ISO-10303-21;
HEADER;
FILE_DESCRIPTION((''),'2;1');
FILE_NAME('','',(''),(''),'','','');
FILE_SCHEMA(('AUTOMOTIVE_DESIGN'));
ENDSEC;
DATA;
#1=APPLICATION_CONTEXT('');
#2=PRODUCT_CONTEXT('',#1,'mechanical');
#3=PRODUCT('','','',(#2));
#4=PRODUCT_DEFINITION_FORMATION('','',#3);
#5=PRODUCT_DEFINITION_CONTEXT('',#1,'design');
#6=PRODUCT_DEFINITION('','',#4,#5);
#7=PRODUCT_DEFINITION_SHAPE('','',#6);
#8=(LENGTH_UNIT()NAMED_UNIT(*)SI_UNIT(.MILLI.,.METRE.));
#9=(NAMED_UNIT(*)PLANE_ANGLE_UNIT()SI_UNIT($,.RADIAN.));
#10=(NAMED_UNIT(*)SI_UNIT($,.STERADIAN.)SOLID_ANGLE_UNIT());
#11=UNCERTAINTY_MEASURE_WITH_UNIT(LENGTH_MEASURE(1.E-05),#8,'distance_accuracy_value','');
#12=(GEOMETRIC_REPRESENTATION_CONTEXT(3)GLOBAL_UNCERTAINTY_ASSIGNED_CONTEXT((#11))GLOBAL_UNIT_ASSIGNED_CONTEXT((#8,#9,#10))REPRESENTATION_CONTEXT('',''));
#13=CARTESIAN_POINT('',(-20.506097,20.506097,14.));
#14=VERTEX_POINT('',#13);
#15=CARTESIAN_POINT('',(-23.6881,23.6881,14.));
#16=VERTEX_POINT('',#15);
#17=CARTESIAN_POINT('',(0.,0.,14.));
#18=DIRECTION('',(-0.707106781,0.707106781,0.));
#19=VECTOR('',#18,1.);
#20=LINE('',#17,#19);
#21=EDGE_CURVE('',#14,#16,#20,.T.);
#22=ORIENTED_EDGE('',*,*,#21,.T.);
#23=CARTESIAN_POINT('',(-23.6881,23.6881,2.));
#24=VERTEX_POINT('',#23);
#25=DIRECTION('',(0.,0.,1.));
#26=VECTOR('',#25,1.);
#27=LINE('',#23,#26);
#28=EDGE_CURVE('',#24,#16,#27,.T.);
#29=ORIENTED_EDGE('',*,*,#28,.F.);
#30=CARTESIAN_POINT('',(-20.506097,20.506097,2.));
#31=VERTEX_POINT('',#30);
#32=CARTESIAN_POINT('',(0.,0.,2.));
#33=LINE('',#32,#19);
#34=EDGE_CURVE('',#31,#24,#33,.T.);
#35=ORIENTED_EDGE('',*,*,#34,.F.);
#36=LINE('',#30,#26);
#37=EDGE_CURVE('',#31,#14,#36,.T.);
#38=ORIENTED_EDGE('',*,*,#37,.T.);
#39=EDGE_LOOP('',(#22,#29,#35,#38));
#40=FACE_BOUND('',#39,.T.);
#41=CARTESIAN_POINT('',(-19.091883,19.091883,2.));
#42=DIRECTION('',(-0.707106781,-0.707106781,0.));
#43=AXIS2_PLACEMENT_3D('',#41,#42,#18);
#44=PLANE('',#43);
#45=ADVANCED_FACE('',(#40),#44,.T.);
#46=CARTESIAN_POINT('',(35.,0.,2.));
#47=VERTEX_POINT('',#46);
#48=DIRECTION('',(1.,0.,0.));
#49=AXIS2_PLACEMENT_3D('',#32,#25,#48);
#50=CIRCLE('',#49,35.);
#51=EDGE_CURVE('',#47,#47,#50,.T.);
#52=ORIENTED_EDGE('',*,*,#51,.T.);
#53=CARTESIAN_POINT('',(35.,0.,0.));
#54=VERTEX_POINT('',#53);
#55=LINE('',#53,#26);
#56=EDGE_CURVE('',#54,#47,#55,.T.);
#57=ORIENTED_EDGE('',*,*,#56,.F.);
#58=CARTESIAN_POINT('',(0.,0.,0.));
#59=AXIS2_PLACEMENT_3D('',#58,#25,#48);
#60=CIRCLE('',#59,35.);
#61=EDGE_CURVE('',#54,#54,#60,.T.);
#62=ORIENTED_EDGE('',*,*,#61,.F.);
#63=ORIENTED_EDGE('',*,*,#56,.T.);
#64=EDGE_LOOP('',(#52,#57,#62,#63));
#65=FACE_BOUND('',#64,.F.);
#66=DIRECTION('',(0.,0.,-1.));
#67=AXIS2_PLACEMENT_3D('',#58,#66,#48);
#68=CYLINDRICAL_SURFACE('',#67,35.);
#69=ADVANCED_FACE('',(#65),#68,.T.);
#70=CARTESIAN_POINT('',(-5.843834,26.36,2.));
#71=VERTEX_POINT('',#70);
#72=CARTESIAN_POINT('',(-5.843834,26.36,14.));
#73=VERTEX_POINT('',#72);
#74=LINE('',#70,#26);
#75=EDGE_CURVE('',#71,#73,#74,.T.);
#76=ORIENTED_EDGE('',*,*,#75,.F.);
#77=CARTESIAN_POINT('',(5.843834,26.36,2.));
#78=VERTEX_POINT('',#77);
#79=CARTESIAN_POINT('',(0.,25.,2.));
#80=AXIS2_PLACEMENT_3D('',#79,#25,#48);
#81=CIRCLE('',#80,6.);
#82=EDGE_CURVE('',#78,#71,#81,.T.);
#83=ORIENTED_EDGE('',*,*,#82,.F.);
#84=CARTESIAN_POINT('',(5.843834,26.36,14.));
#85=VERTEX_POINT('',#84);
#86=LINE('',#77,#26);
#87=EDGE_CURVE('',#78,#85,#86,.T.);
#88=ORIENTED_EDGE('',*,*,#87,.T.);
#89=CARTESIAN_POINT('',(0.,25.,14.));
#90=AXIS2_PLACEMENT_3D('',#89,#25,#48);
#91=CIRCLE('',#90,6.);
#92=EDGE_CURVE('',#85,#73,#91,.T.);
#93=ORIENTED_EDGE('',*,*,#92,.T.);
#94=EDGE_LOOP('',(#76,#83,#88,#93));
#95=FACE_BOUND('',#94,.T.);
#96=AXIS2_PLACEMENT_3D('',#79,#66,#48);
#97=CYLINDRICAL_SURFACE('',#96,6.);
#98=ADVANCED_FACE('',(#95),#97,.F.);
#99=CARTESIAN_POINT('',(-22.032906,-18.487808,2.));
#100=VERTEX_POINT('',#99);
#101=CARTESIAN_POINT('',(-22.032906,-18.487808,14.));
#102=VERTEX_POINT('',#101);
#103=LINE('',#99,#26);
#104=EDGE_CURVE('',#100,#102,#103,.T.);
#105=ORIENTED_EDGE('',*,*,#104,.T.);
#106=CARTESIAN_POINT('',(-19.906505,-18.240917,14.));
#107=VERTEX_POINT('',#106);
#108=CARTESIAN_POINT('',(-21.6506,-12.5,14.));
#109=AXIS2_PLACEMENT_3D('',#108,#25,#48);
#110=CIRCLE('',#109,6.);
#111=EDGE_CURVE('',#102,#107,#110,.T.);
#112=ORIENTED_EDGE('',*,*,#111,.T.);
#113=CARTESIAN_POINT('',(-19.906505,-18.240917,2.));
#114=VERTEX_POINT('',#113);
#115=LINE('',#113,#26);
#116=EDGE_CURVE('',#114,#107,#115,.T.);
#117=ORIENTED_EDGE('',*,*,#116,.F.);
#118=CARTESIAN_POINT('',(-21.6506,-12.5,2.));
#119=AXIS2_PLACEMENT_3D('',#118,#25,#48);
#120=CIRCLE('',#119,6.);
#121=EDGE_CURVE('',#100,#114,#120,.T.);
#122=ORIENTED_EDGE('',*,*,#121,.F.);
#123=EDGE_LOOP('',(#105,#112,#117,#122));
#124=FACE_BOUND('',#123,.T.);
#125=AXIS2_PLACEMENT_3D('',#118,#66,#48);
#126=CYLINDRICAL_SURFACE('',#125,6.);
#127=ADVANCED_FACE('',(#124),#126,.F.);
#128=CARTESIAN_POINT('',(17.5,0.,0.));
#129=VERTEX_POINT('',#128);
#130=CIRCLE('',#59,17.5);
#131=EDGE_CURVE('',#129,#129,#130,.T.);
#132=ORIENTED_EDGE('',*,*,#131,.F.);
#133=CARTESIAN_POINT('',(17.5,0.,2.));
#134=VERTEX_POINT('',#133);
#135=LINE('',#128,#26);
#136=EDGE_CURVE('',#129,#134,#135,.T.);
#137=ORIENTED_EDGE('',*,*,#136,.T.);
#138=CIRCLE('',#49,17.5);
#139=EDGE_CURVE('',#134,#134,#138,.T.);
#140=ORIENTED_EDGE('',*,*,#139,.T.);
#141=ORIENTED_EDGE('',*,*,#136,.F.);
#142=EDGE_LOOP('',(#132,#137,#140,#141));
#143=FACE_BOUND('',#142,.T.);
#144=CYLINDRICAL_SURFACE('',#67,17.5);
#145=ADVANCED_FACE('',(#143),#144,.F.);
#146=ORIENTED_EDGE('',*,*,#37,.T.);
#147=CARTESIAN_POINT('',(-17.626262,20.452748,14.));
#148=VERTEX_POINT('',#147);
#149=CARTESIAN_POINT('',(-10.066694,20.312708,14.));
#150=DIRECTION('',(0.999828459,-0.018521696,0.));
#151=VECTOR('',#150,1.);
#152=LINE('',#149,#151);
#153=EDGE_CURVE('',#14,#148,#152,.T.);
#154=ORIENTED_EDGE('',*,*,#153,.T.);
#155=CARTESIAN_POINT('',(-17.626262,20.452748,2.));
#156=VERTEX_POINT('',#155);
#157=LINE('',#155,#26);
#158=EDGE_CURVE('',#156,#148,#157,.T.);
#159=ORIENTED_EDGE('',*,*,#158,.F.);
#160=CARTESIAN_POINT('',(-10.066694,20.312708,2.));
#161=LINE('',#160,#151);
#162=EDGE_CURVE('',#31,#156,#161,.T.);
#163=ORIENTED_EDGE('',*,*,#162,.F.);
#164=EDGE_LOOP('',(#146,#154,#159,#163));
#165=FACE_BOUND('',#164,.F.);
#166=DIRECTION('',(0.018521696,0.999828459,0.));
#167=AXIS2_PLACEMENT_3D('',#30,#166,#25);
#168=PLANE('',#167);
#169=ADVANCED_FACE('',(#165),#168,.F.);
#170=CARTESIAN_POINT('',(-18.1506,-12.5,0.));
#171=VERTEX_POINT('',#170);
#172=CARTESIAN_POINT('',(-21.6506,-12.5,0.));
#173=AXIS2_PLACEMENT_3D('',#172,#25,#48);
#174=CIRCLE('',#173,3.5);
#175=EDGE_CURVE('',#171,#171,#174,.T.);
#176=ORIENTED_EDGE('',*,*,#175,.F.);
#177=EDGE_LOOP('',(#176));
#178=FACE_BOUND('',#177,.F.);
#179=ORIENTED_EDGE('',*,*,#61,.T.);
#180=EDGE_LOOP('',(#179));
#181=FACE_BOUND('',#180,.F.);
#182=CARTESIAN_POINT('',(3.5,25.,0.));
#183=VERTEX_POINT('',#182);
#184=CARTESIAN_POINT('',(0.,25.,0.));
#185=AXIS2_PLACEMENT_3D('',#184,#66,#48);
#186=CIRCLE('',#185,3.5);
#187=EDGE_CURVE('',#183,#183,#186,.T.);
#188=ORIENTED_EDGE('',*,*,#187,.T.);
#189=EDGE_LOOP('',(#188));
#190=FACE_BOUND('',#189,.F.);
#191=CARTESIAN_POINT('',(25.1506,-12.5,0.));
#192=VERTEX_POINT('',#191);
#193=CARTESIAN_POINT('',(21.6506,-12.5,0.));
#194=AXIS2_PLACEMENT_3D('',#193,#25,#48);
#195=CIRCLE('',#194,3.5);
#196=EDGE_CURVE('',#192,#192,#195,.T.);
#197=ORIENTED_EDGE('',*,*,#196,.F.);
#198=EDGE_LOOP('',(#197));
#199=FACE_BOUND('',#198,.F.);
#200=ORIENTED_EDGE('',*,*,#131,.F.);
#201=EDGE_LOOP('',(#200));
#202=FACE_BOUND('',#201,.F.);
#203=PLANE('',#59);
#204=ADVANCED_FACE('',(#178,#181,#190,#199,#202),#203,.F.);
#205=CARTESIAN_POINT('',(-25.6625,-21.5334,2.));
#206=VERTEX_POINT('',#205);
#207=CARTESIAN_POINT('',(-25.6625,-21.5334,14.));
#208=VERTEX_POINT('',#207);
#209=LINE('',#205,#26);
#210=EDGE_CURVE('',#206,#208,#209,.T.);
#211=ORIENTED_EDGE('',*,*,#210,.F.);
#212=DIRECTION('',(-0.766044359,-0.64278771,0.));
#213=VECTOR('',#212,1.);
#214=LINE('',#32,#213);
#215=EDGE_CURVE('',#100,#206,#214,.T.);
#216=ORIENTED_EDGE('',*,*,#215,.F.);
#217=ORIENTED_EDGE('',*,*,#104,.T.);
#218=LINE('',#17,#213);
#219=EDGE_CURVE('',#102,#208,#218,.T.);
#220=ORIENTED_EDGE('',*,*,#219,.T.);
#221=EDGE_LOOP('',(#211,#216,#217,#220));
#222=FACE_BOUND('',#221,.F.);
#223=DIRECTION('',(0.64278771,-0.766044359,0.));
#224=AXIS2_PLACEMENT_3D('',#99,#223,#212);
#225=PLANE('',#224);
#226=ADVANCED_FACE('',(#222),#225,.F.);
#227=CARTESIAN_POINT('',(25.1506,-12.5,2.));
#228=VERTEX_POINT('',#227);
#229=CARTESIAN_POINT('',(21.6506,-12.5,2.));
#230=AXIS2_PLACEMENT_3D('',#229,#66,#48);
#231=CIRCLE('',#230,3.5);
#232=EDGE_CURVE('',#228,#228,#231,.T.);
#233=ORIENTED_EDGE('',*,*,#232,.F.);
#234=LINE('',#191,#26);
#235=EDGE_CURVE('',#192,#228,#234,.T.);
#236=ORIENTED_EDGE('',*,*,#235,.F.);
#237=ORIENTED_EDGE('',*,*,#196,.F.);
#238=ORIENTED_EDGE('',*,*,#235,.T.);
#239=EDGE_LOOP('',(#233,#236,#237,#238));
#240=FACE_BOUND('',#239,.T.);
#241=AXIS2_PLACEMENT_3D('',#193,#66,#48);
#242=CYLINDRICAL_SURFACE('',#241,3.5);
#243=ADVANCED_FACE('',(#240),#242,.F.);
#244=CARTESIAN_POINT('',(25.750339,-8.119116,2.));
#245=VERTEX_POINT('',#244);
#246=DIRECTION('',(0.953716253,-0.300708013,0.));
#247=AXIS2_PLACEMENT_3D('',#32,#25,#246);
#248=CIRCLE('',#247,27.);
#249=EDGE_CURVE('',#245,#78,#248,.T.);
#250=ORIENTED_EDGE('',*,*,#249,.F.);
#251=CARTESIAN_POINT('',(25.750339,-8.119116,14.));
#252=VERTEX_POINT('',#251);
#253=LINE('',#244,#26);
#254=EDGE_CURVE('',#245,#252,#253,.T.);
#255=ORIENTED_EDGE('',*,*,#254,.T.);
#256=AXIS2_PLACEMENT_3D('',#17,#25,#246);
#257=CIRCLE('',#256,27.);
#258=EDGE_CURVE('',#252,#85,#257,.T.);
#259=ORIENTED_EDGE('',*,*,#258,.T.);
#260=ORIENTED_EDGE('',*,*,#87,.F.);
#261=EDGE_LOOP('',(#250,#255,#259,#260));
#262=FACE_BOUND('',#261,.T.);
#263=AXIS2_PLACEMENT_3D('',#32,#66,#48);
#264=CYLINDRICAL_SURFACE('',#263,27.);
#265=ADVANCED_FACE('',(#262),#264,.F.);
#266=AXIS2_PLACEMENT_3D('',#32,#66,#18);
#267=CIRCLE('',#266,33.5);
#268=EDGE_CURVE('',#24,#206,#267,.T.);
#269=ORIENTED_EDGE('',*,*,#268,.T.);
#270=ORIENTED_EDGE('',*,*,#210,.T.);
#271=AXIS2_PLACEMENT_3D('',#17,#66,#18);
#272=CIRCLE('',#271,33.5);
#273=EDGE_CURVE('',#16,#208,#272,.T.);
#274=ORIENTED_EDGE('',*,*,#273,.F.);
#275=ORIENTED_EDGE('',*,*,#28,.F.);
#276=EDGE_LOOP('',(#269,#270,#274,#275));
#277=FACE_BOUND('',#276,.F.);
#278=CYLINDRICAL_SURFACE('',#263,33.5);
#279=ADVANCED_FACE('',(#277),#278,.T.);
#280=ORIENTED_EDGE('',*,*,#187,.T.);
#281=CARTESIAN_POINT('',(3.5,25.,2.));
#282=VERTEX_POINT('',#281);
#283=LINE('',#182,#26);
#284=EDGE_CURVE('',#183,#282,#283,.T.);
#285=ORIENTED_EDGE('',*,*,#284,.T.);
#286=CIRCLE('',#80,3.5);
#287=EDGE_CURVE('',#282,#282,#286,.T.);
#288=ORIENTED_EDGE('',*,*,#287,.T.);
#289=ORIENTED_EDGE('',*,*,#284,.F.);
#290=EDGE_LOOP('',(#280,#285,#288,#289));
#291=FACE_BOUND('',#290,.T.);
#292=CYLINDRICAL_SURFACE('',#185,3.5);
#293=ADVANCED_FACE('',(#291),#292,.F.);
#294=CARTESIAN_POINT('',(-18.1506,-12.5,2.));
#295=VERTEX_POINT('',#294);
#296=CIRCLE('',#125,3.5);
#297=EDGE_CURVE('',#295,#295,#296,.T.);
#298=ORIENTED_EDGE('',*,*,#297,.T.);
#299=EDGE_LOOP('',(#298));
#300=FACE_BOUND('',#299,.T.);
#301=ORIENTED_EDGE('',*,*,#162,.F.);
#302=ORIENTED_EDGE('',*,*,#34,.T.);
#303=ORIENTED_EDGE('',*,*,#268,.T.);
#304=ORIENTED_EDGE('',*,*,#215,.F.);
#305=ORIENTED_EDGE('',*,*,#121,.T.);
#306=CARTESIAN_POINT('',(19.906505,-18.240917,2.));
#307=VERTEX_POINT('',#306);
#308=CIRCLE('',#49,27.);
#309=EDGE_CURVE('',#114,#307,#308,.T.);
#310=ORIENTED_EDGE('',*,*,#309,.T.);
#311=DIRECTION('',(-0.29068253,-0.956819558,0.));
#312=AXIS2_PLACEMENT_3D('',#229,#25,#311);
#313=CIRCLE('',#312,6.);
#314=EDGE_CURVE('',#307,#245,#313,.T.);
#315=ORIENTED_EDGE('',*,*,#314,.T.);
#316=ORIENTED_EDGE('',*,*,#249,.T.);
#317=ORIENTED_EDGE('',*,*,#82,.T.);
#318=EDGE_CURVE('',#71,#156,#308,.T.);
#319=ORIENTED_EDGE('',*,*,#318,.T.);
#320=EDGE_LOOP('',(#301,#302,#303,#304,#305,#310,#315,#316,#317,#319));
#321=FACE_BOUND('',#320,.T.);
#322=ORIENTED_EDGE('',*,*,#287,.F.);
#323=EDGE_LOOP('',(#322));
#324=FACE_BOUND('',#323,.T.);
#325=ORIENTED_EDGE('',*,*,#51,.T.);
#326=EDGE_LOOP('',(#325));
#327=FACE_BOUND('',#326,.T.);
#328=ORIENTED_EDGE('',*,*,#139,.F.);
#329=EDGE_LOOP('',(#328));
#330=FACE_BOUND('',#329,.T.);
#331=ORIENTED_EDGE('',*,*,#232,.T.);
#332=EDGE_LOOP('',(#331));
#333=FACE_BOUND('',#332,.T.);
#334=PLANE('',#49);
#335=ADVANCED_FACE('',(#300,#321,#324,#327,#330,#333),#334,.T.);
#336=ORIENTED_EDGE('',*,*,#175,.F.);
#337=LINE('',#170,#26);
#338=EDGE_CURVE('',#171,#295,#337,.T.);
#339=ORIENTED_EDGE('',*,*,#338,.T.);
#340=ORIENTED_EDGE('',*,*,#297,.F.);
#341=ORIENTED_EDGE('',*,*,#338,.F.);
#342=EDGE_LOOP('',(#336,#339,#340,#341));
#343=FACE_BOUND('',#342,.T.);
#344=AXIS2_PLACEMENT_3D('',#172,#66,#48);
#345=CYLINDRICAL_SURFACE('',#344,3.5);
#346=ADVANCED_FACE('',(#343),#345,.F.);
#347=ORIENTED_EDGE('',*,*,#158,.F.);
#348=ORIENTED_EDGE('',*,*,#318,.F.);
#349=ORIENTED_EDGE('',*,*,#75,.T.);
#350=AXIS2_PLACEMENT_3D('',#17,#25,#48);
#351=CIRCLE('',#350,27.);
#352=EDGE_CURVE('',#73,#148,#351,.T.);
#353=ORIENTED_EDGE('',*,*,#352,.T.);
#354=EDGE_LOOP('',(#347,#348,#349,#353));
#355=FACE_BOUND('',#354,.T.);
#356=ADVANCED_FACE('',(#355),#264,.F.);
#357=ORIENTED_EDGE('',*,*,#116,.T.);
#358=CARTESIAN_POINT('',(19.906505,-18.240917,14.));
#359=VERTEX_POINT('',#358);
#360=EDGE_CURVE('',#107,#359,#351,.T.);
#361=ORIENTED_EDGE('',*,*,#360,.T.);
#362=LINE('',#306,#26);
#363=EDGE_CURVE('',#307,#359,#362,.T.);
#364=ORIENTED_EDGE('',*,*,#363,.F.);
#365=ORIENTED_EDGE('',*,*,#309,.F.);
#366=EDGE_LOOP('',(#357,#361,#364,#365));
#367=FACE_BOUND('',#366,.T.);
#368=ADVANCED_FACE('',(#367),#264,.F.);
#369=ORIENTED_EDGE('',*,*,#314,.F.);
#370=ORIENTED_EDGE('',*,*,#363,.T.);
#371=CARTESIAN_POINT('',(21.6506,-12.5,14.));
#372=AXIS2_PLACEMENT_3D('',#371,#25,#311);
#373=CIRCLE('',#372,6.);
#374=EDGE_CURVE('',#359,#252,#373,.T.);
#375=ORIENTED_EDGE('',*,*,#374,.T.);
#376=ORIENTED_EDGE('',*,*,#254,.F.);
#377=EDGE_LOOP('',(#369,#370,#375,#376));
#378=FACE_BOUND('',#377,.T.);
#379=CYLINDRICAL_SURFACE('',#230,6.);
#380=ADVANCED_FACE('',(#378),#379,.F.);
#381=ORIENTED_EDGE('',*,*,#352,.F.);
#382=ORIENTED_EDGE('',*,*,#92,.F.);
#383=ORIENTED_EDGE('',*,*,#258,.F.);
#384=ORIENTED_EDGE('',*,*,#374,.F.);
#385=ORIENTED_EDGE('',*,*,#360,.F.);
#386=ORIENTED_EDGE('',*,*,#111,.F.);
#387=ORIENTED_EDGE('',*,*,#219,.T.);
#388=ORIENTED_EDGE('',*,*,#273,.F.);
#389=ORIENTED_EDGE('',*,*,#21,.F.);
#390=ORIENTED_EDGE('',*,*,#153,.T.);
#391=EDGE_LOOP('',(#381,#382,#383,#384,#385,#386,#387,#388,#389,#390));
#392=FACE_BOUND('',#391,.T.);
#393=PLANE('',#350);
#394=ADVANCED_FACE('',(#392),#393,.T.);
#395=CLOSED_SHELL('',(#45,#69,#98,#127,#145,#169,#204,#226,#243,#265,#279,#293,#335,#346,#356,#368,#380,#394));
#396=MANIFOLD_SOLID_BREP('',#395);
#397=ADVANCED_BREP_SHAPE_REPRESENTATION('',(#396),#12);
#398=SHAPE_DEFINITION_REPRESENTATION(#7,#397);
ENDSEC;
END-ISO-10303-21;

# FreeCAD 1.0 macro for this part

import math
import FreeCAD as App
import Part
import Sketcher
Q = App.Units.Quantity


def edges_at(feature, points):
    """Names of the edges that pass closest to the given points."""
    edges = feature.Shape.Edges
    near = lambda p: min(range(len(edges)), key=lambda i: edges[i].distToShape(Part.Vertex(*p))[0])
    return sorted({f"Edge{near(p) + 1}" for p in points})

doc = App.newDocument("Part")
body = doc.addObject("PartDesign::Body", "Body")

# Sketch on XY plane
sketch1 = body.newObject("Sketcher::SketchObject", "Sketch")
sketch1.AttachmentSupport = (doc.getObject("XY_Plane"), [""])
sketch1.MapMode = "FlatFace"
sketch1.addGeometry([
    Part.Circle(App.Vector(0, 0, 0), App.Vector(0, 0, 1), 35),  # 0
    Part.Circle(App.Vector(0, 25, 0), App.Vector(0, 0, 1), 3.5),  # 1
    Part.Circle(App.Vector(21.7, -12.5, 0), App.Vector(0, 0, 1), 3.5),  # 2
    Part.Circle(App.Vector(-21.7, -12.5, 0), App.Vector(0, 0, 1), 3.5),  # 3
    Part.Circle(App.Vector(0, 0, 0), App.Vector(0, 0, 1), 17.5),  # 4
], False)
sketch1.addConstraint([
    Sketcher.Constraint("Coincident", 0, 3, -1, 1),
    Sketcher.Constraint("Coincident", 4, 3, -1, 1),
    Sketcher.Constraint("Equal", 1, 2),
    Sketcher.Constraint("Equal", 2, 3),
    Sketcher.Constraint("Symmetric", 2, 3, 3, 3, -2),
    Sketcher.Constraint("PointOnObject", 1, 3, -2),
    Sketcher.Constraint("Diameter", 0, Q("70 mm")),
    Sketcher.Constraint("Diameter", 1, Q("7 mm")),
    Sketcher.Constraint("Diameter", 4, Q("35 mm")),
    Sketcher.Constraint("DistanceY", -1, 1, 1, 3, Q("25 mm")),
    Sketcher.Constraint("DistanceY", 2, 3, -1, 1, Q("12.5 mm")),
    Sketcher.Constraint("DistanceX", -1, 1, 2, 3, Q("21.6506 mm")),
])
pad1 = body.newObject("PartDesign::Pad", "Pad")
pad1.Profile = sketch1
pad1.Length = 2

# Sketch on XY plane
sketch2 = body.newObject("Sketcher::SketchObject", "Sketch001")
sketch2.AttachmentSupport = (doc.getObject("XY_Plane"), [""])
sketch2.MapMode = "FlatFace"
sketch2.AttachmentOffset = App.Placement(App.Vector(0, 0, 2), App.Rotation())
sketch2.addGeometry([
    Part.ArcOfCircle(Part.Circle(App.Vector(0, 0, 0), App.Vector(0, 0, 1), 27), math.radians(-18), math.radians(78)),  # 0
    Part.ArcOfCircle(Part.Circle(App.Vector(21.7, -12.5, 0), App.Vector(0, 0, 1), 6), math.radians(-107), math.radians(47)),  # 1
    Part.ArcOfCircle(Part.Circle(App.Vector(0, 0, 0), App.Vector(0, 0, 1), 27), math.radians(-138), math.radians(-42)),  # 2
    Part.ArcOfCircle(Part.Circle(App.Vector(-21.7, -12.5, 0), App.Vector(0, 0, 1), 6), math.radians(-94), math.radians(-73)),  # 3
    Part.LineSegment(App.Vector(-22, -18.5, 0), App.Vector(-25.7, -21.5, 0)),  # 4
    Part.ArcOfCircle(Part.Circle(App.Vector(0, 0, 0), App.Vector(0, 0, 1), 33.5), math.radians(-140), math.radians(135)),  # 5
    Part.LineSegment(App.Vector(-23.7, 23.7, 0), App.Vector(-19.1, 19.1, 0)),  # 6
    Part.ArcOfCircle(Part.Circle(App.Vector(0, 0, 0), App.Vector(0, 0, 1), 27), math.radians(102), math.radians(135)),  # 7
    Part.ArcOfCircle(Part.Circle(App.Vector(0, 25, 0), App.Vector(0, 0, 1), 6), math.radians(13), math.radians(167)),  # 8
], False)
sketch2.addConstraint([
    Sketcher.Constraint("Coincident", 0, 1, 1, 2),
    Sketcher.Constraint("Coincident", 1, 1, 2, 2),
    Sketcher.Constraint("Coincident", 2, 1, 3, 2),
    Sketcher.Constraint("Coincident", 3, 1, 4, 1),
    Sketcher.Constraint("Coincident", 4, 2, 5, 1),
    Sketcher.Constraint("Coincident", 5, 2, 6, 1),
    Sketcher.Constraint("Coincident", 6, 2, 7, 2),
    Sketcher.Constraint("Coincident", 7, 1, 8, 2),
    Sketcher.Constraint("Coincident", 8, 1, 0, 2),
    Sketcher.Constraint("Coincident", 0, 3, -1, 1),
    Sketcher.Constraint("Coincident", 2, 3, -1, 1),
    Sketcher.Constraint("Coincident", 5, 3, -1, 1),
    Sketcher.Constraint("Coincident", 7, 3, -1, 1),
    Sketcher.Constraint("Equal", 0, 2),
    Sketcher.Constraint("Equal", 1, 3),
    Sketcher.Constraint("Equal", 2, 7),
    Sketcher.Constraint("Equal", 3, 8),
    Sketcher.Constraint("Symmetric", 1, 3, 3, 3, -2),
    Sketcher.Constraint("PointOnObject", 8, 3, -2),
    Sketcher.Constraint("Radius", 0, Q("27 mm")),
    Sketcher.Constraint("Radius", 1, Q("6 mm")),
    Sketcher.Constraint("Radius", 5, Q("33.5 mm")),
    Sketcher.Constraint("Angle", 6, Q("-45 deg")),
    Sketcher.Constraint("Angle", 4, Q("-140 deg")),
    Sketcher.Constraint("DistanceY", -1, 1, 8, 3, Q("25 mm")),
    Sketcher.Constraint("DistanceY", 1, 3, -1, 1, Q("12.5 mm")),
    Sketcher.Constraint("Distance", 4, Q("4.738 mm")),
    Sketcher.Constraint("DistanceY", 0, 1, -1, 1, Q("8.119 mm")),
    Sketcher.Constraint("DistanceX", 5, 2, -1, 1, Q("23.688 mm")),
])
pad2 = body.newObject("PartDesign::Pad", "Pad001")
pad2.Profile = sketch2
pad2.Length = 12
doc.recompute()

chamfer = body.newObject("PartDesign::Chamfer", "Chamfer")
chamfer.Base = (pad2, edges_at(pad2, [(-19.092, 19.092, 8)]))
chamfer.Size = 2

doc.recompute()
